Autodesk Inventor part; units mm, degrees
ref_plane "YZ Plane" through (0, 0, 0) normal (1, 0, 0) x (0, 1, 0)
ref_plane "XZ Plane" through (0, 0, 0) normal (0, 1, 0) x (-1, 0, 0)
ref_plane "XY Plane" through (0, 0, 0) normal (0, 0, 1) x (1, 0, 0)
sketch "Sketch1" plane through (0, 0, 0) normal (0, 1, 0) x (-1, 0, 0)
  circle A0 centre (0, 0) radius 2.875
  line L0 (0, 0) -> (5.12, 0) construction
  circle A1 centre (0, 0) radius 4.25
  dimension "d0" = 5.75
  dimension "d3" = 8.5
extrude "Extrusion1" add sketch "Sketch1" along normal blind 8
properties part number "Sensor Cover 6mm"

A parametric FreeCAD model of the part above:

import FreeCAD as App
import Part
import Sketcher
from FreeCAD import Vector
Q = App.Units.Quantity

doc = App.newDocument("Part")
body = doc.addObject("PartDesign::Body", "Body")

# Sketch on XZ plane
sketch1 = doc.addObject("Sketcher::SketchObject", "Sketch")
body.addObject(sketch1)
sketch1.AttachmentSupport = (doc.XZ_Plane, [""])
sketch1.MapMode = "FlatFace"
sketch1.addGeometry(Part.Circle(Vector(0, 0, 0), Vector(0, 0, 1), 4.25), False)
sketch1.addGeometry(Part.Circle(Vector(0, 0, 0), Vector(0, 0, 1), 2.875), False)
sketch1.addConstraint(Sketcher.Constraint("Coincident", 0, 3, -1, 1))
sketch1.addConstraint(Sketcher.Constraint("Coincident", 1, 3, -1, 1))
sketch1.addConstraint(Sketcher.Constraint("Diameter", 0, Q("8.5 mm")))
sketch1.addConstraint(Sketcher.Constraint("Diameter", 1, Q("5.75 mm")))
pad1 = doc.addObject("PartDesign::Pad", "Pad")
body.addObject(pad1)
pad1.Profile = sketch1
pad1.Length = 8
pad1.Reversed = True

doc.recompute()
